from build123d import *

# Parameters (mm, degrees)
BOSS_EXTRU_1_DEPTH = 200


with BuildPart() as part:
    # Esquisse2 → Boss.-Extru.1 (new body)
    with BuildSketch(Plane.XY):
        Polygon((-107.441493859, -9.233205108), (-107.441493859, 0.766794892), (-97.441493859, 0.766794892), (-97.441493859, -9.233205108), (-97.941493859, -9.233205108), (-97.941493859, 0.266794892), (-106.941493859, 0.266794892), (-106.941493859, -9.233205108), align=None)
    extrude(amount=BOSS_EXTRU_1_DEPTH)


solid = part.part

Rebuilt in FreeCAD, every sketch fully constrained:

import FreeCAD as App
import Part
import Sketcher
Q = App.Units.Quantity

doc = App.newDocument("Part")
body = doc.addObject("PartDesign::Body", "Body")

sketch1 = doc.addObject("Sketcher::SketchObject", "Sketch")
body.addObject(sketch1)
sketch1.AttachmentSupport = (doc.XY_Plane, [""])
sketch1.MapMode = "FlatFace"
sketch1.addGeometry(Part.LineSegment(App.Vector(-107.441494, 0.766795, 0), App.Vector(-107.441494, -9.233205, 0)), False)
sketch1.addGeometry(Part.LineSegment(App.Vector(-107.441494, -9.233205, 0), App.Vector(-106.941494, -9.233205, 0)), False)
sketch1.addGeometry(Part.LineSegment(App.Vector(-106.941494, -9.233205, 0), App.Vector(-106.941494, 0.266795, 0)), False)
sketch1.addGeometry(Part.LineSegment(App.Vector(-106.941494, 0.266795, 0), App.Vector(-97.941494, 0.266795, 0)), False)
sketch1.addGeometry(Part.LineSegment(App.Vector(-97.941494, 0.266795, 0), App.Vector(-97.941494, -9.233205, 0)), False)
sketch1.addGeometry(Part.LineSegment(App.Vector(-97.941494, -9.233205, 0), App.Vector(-97.441494, -9.233205, 0)), False)
sketch1.addGeometry(Part.LineSegment(App.Vector(-97.441494, -9.233205, 0), App.Vector(-97.441494, 0.766795, 0)), False)
sketch1.addGeometry(Part.LineSegment(App.Vector(-97.441494, 0.766795, 0), App.Vector(-107.441494, 0.766795, 0)), False)
sketch1.addConstraint(Sketcher.Constraint("Coincident", 0, 2, 1, 1))
sketch1.addConstraint(Sketcher.Constraint("Coincident", 1, 2, 2, 1))
sketch1.addConstraint(Sketcher.Constraint("Coincident", 2, 2, 3, 1))
sketch1.addConstraint(Sketcher.Constraint("Coincident", 3, 2, 4, 1))
sketch1.addConstraint(Sketcher.Constraint("Coincident", 4, 2, 5, 1))
sketch1.addConstraint(Sketcher.Constraint("Coincident", 5, 2, 6, 1))
sketch1.addConstraint(Sketcher.Constraint("Coincident", 6, 2, 7, 1))
sketch1.addConstraint(Sketcher.Constraint("Coincident", 7, 2, 0, 1))
sketch1.addConstraint(Sketcher.Constraint("Vertical", 0))
sketch1.addConstraint(Sketcher.Constraint("Horizontal", 1))
sketch1.addConstraint(Sketcher.Constraint("Vertical", 2))
sketch1.addConstraint(Sketcher.Constraint("Horizontal", 3))
sketch1.addConstraint(Sketcher.Constraint("Vertical", 4))
sketch1.addConstraint(Sketcher.Constraint("Horizontal", 5))
sketch1.addConstraint(Sketcher.Constraint("Vertical", 6))
sketch1.addConstraint(Sketcher.Constraint("Horizontal", 7))
sketch1.addConstraint(Sketcher.Constraint("Horizontal", 1, 2, 4, 2))
sketch1.addConstraint(Sketcher.Constraint("Equal", 1, 5))
sketch1.addConstraint(Sketcher.Constraint("Equal", 7, 0))
sketch1.addConstraint(Sketcher.Constraint("DistanceX", 3, 1, 3, 2, Q("9 mm")))
sketch1.addConstraint(Sketcher.Constraint("DistanceX", 7, 2, 7, 1, Q("10 mm")))
sketch1.addConstraint(Sketcher.Constraint("DistanceY", 2, 1, 2, 2, Q("9.5 mm")))
sketch1.addConstraint(Sketcher.Constraint("DistanceX", 0, 2, -1, 1, Q("107.441494 mm")))
sketch1.addConstraint(Sketcher.Constraint("DistanceY", 0, 2, -1, 1, Q("9.233205 mm")))
pad1 = doc.addObject("PartDesign::Pad", "Pad")
body.addObject(pad1)
pad1.Profile = sketch1
pad1.Length = 200

doc.recompute()
